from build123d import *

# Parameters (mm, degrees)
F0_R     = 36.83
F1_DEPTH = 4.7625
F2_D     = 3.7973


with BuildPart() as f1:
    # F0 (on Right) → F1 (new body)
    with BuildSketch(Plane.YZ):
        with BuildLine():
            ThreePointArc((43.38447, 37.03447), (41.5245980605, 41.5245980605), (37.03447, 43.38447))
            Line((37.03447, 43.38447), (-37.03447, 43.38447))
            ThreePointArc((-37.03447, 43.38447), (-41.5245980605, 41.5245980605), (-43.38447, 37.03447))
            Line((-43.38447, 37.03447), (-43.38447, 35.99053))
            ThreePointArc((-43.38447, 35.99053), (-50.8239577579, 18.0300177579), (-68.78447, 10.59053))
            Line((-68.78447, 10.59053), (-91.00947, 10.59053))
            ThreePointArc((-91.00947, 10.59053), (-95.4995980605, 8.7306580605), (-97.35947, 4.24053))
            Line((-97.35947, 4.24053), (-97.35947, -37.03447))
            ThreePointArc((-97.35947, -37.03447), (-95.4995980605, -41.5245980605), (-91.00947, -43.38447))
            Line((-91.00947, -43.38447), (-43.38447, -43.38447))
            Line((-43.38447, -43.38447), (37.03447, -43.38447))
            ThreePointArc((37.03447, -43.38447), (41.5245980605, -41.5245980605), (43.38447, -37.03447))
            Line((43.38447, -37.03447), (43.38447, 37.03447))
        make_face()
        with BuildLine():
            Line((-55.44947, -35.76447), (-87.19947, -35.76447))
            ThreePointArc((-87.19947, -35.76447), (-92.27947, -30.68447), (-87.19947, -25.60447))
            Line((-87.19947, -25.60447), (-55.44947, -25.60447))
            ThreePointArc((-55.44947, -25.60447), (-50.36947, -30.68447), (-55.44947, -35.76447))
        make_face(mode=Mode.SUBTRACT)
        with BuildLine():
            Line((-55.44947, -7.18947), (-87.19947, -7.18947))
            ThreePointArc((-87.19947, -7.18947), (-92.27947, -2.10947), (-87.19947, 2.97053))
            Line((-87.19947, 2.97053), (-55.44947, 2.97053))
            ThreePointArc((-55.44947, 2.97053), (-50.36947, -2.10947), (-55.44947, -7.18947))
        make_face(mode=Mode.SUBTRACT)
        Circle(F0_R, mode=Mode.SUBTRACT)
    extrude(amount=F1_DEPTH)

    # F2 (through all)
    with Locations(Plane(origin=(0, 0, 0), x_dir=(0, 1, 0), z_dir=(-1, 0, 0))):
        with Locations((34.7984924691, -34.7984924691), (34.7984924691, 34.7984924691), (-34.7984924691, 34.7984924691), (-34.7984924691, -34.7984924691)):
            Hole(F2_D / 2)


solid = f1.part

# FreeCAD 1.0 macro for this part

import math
import FreeCAD as App
import Part
import Sketcher

V = App.Vector
Q = App.Units.Quantity

doc = App.newDocument("Part")
body = doc.addObject("PartDesign::Body", "Body")

# Sketch on YZ plane
sketch1 = doc.addObject("Sketcher::SketchObject", "Sketch")
body.addObject(sketch1)
sketch1.AttachmentSupport = (doc.YZ_Plane, [""])
sketch1.MapMode = "FlatFace"
sketch1.addGeometry([
    Part.ArcOfCircle(Part.Circle(V(37.03447, 37.03447, 0), V(0, 0, 1), 6.35), math.radians(0), math.radians(90)),  # 0
    Part.LineSegment(V(37.03447, 43.38447, 0), V(-37.03447, 43.38447, 0)),  # 1
    Part.ArcOfCircle(Part.Circle(V(-37.03447, 37.03447, 0), V(0, 0, 1), 6.35), math.radians(90), math.radians(180)),  # 2
    Part.LineSegment(V(-43.38447, 37.03447, 0), V(-43.38447, 35.99053, 0)),  # 3
    Part.ArcOfCircle(Part.Circle(V(-68.78447, 35.99053, 0), V(0, 0, 1), 25.4), math.radians(-90), math.radians(0)),  # 4
    Part.LineSegment(V(-68.78447, 10.59053, 0), V(-91.00947, 10.59053, 0)),  # 5
    Part.ArcOfCircle(Part.Circle(V(-91.00947, 4.24053, 0), V(0, 0, 1), 6.35), math.radians(90), math.radians(180)),  # 6
    Part.LineSegment(V(-97.35947, 4.24053, 0), V(-97.35947, -37.03447, 0)),  # 7
    Part.ArcOfCircle(Part.Circle(V(-91.00947, -37.03447, 0), V(0, 0, 1), 6.35), math.radians(180), math.radians(270)),  # 8
    Part.LineSegment(V(-91.00947, -43.38447, 0), V(37.03447, -43.38447, 0)),  # 9
    Part.ArcOfCircle(Part.Circle(V(37.03447, -37.03447, 0), V(0, 0, 1), 6.35), math.radians(-90), math.radians(0)),  # 10
    Part.LineSegment(V(43.38447, -37.03447, 0), V(43.38447, 37.03447, 0)),  # 11
    Part.ArcOfCircle(Part.Circle(V(-55.44947, -30.68447, 0), V(0, 0, 1), 5.08), math.radians(-90), math.radians(90)),  # 12
    Part.LineSegment(V(-55.44947, -35.76447, 0), V(-87.19947, -35.76447, 0)),  # 13
    Part.ArcOfCircle(Part.Circle(V(-87.19947, -30.68447, 0), V(0, 0, 1), 5.08), math.radians(90), math.radians(270)),  # 14
    Part.LineSegment(V(-87.19947, -25.60447, 0), V(-55.44947, -25.60447, 0)),  # 15
    Part.ArcOfCircle(Part.Circle(V(-55.44947, -2.10947, 0), V(0, 0, 1), 5.08), math.radians(-90), math.radians(90)),  # 16
    Part.LineSegment(V(-55.44947, -7.18947, 0), V(-87.19947, -7.18947, 0)),  # 17
    Part.ArcOfCircle(Part.Circle(V(-87.19947, -2.10947, 0), V(0, 0, 1), 5.08), math.radians(90), math.radians(270)),  # 18
    Part.LineSegment(V(-87.19947, 2.97053, 0), V(-55.44947, 2.97053, 0)),  # 19
    Part.Circle(V(0, 0, 0), V(0, 0, 1), 36.83),  # 20
], False)
sketch1.addConstraint([
    Sketcher.Constraint("Tangent", 0, 2, 1, 1),
    Sketcher.Constraint("Tangent", 1, 2, 2, 1),
    Sketcher.Constraint("Tangent", 2, 2, 3, 1),
    Sketcher.Constraint("Tangent", 3, 2, 4, 2),
    Sketcher.Constraint("Tangent", 4, 1, 5, 1),
    Sketcher.Constraint("Tangent", 5, 2, 6, 1),
    Sketcher.Constraint("Tangent", 6, 2, 7, 1),
    Sketcher.Constraint("Tangent", 7, 2, 8, 1),
    Sketcher.Constraint("Tangent", 8, 2, 9, 1),
    Sketcher.Constraint("Tangent", 9, 2, 10, 1),
    Sketcher.Constraint("Tangent", 10, 2, 11, 1),
    Sketcher.Constraint("Tangent", 11, 2, 0, 1),
    Sketcher.Constraint("Tangent", 12, 1, 13, 1),
    Sketcher.Constraint("Tangent", 13, 2, 14, 2),
    Sketcher.Constraint("Tangent", 14, 1, 15, 1),
    Sketcher.Constraint("Tangent", 15, 2, 12, 2),
    Sketcher.Constraint("Tangent", 16, 1, 17, 1),
    Sketcher.Constraint("Tangent", 17, 2, 18, 2),
    Sketcher.Constraint("Tangent", 18, 1, 19, 1),
    Sketcher.Constraint("Tangent", 19, 2, 16, 2),
    Sketcher.Constraint("Horizontal", 1),
    Sketcher.Constraint("Vertical", 3),
    Sketcher.Constraint("Horizontal", 5),
    Sketcher.Constraint("Vertical", 7),
    Sketcher.Constraint("Horizontal", 9),
    Sketcher.Constraint("Vertical", 11),
    Sketcher.Constraint("Horizontal", 13),
    Sketcher.Constraint("Horizontal", 15),
    Sketcher.Constraint("Horizontal", 17),
    Sketcher.Constraint("Horizontal", 19),
    Sketcher.Constraint("Coincident", 20, 3, -1, 1),
    Sketcher.Constraint("Equal", 0, 2),
    Sketcher.Constraint("Equal", 2, 6),
    Sketcher.Constraint("Equal", 6, 8),
    Sketcher.Constraint("Equal", 8, 10),
    Sketcher.Constraint("Equal", 14, 16),
    Sketcher.Constraint("Symmetric", 2, 3, 10, 3, -1, 1),
    Sketcher.Constraint("Vertical", 12, 3, 16, 3),
    Sketcher.Constraint("Vertical", 14, 3, 18, 3),
    Sketcher.Constraint("Equal", 1, 11),
    Sketcher.Constraint("Radius", 4, Q("1 in")),
    Sketcher.Constraint("Diameter", 20, Q("2.9 in")),
    Sketcher.Constraint("Radius", 12, Q("0.2 in")),
    Sketcher.Constraint("Radius", 0, Q("0.25 in")),
    Sketcher.Constraint("DistanceX", 13, 2, 13, 1, Q("1.25 in")),
    Sketcher.Constraint("DistanceX", 8, 3, 12, 3, Q("1.4 in")),
    Sketcher.Constraint("DistanceY", 16, 3, 4, 3, Q("1.5 in")),
    Sketcher.Constraint("DistanceY", 8, 2, 14, 3, Q("0.5 in")),
    Sketcher.Constraint("DistanceX", 5, 2, 5, 1, Q("0.875 in")),
    Sketcher.Constraint("DistanceY", 7, 2, 7, 1, Q("1.625 in")),
    Sketcher.Constraint("DistanceX", 1, 2, 1, 1, Q("2.9161 in")),
])
pad1 = doc.addObject("PartDesign::Pad", "Pad")
body.addObject(pad1)
pad1.Profile = sketch1
pad1.Length = Q("0.1875 in")

# Sketch on YZ plane
sketch2 = doc.addObject("Sketcher::SketchObject", "Sketch001")
body.addObject(sketch2)
sketch2.AttachmentSupport = (doc.YZ_Plane, [""])
sketch2.MapMode = "FlatFace"
sketch2.addGeometry([
    Part.Circle(V(34.798492, 34.798492, 0), V(0, 0, 1), 1.89865),
    Part.Circle(V(34.798492, -34.798492, 0), V(0, 0, 1), 1.89865),
    Part.Circle(V(-34.798492, -34.798492, 0), V(0, 0, 1), 1.89865),
    Part.Circle(V(-34.798492, 34.798492, 0), V(0, 0, 1), 1.89865),
], False)
sketch2.addConstraint([
    Sketcher.Constraint("Equal", 0, 1),
    Sketcher.Constraint("Equal", 1, 2),
    Sketcher.Constraint("Equal", 2, 3),
    Sketcher.Constraint("Symmetric", 0, 3, 2, 3, -1, 1),
    Sketcher.Constraint("Symmetric", 1, 3, 3, 3, -1, 1),
    Sketcher.Constraint("Symmetric", 1, 3, 2, 3, -2),
    Sketcher.Constraint("Diameter", 0, Q("0.1495 in")),
    Sketcher.Constraint("DistanceX", -1, 1, 0, 3, Q("34.798492 mm")),
    Sketcher.Constraint("DistanceY", -1, 1, 0, 3, Q("34.798492 mm")),
])
doc.recompute()
hole = doc.addObject("PartDesign::Hole", "Hole")
body.addObject(hole)
hole.Profile = sketch2
hole.ThreadType = "None"
hole.Diameter = Q("0.1495 in")
hole.DepthType = "ThroughAll"
hole.Reversed = True

doc.recompute()
